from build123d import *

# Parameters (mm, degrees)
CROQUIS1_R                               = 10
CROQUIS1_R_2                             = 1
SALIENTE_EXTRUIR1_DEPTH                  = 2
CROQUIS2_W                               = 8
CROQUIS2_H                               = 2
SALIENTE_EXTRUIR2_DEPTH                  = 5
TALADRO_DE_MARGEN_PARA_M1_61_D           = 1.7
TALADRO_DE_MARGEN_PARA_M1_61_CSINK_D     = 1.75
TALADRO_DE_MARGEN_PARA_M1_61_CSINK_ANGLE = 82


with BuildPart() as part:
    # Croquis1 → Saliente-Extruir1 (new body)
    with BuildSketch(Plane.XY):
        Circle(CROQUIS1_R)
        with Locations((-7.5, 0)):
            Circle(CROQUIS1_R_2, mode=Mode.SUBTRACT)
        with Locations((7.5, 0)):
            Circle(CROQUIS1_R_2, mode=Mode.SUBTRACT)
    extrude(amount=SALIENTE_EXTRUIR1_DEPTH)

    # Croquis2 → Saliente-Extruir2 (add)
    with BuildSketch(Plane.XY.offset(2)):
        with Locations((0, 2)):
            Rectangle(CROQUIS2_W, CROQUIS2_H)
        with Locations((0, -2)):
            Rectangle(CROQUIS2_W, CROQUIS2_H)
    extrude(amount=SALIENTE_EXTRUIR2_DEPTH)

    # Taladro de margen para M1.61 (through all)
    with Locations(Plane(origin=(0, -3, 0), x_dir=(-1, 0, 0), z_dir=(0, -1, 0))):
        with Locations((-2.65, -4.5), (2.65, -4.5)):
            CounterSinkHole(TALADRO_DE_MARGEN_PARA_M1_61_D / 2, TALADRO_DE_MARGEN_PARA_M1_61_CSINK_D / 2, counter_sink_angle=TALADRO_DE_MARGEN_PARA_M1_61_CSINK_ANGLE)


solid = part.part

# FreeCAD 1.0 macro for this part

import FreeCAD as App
import Part
import Sketcher
from FreeCAD import Vector
Q = App.Units.Quantity


def add_polygon(sketch, points):
    """Adds a closed chain of lines whose ends are joined by coincident constraints."""
    first, n = sketch.GeometryCount, len(points)
    for a, b in zip(points, points[1:] + points[:1]):
        sketch.addGeometry(Part.LineSegment(App.Vector(*a, 0), App.Vector(*b, 0)), False)
    for i in range(n):
        sketch.addConstraint(Sketcher.Constraint("Coincident", first + i, 2, first + (i + 1) % n, 1))

doc = App.newDocument("Part")
body = doc.addObject("PartDesign::Body", "Body")

# Sketch on XY plane
sketch1 = doc.addObject("Sketcher::SketchObject", "Sketch")
body.addObject(sketch1)
sketch1.AttachmentSupport = (doc.XY_Plane, [""])
sketch1.MapMode = "FlatFace"
sketch1.addGeometry([
    Part.Circle(Vector(0, 0, 0), Vector(0, 0, 1), 10),
    Part.Circle(Vector(-7.5, 0, 0), Vector(0, 0, 1), 1),
    Part.Circle(Vector(7.5, 0, 0), Vector(0, 0, 1), 1),
], False)
sketch1.addConstraint([
    Sketcher.Constraint("Coincident", 0, 3, -1, 1),
    Sketcher.Constraint("Equal", 1, 2),
    Sketcher.Constraint("Symmetric", 1, 3, 2, 3, -1, 1),
    Sketcher.Constraint("PointOnObject", 1, 3, -1),
    Sketcher.Constraint("Diameter", 0, Q("20 mm")),
    Sketcher.Constraint("Diameter", 1, Q("2 mm")),
    Sketcher.Constraint("DistanceX", 1, 3, 2, 3, Q("15 mm")),
])
pad1 = doc.addObject("PartDesign::Pad", "Pad")
body.addObject(pad1)
pad1.Profile = sketch1
pad1.Length = 2

# Sketch on XY plane
sketch2 = doc.addObject("Sketcher::SketchObject", "Sketch001")
body.addObject(sketch2)
sketch2.AttachmentSupport = (doc.XY_Plane, [""])
sketch2.MapMode = "FlatFace"
sketch2.AttachmentOffset = App.Placement(Vector(0, 0, 2), App.Rotation())
add_polygon(sketch2, [(-4, 3), (-4, 1), (4, 1), (4, 3)])  # lines 0-3
add_polygon(sketch2, [(-4, -1), (-4, -3), (4, -3), (4, -1)])  # lines 4-7
sketch2.addConstraint([
    Sketcher.Constraint("Vertical", 0),
    Sketcher.Constraint("Horizontal", 1),
    Sketcher.Constraint("Vertical", 2),
    Sketcher.Constraint("Horizontal", 3),
    Sketcher.Constraint("Vertical", 4),
    Sketcher.Constraint("Horizontal", 5),
    Sketcher.Constraint("Vertical", 6),
    Sketcher.Constraint("Horizontal", 7),
    Sketcher.Constraint("Symmetric", 2, 2, 4, 2, -1, 1),
    Sketcher.Constraint("Symmetric", 0, 2, 6, 2, -1, 1),
    Sketcher.Constraint("Vertical", 3, 2, 4, 2),
    Sketcher.Constraint("DistanceX", 1, 1, 1, 2, Q("8 mm")),
    Sketcher.Constraint("DistanceY", 0, 2, 0, 1, Q("2 mm")),
    Sketcher.Constraint("DistanceY", -1, 1, 0, 2, Q("1 mm")),
])
pad2 = doc.addObject("PartDesign::Pad", "Pad001")
body.addObject(pad2)
pad2.Profile = sketch2
pad2.Length = 5

# Sketch on XZ plane
sketch3 = doc.addObject("Sketcher::SketchObject", "Sketch002")
body.addObject(sketch3)
sketch3.AttachmentSupport = (doc.XZ_Plane, [""])
sketch3.MapMode = "FlatFace"
sketch3.AttachmentOffset = App.Placement(Vector(0, 0, 3), App.Rotation())
sketch3.addGeometry([
    Part.Circle(Vector(2.65, 4.5, 0), Vector(0, 0, 1), 0.85),
    Part.Circle(Vector(-2.65, 4.5, 0), Vector(0, 0, 1), 0.85),
], False)
sketch3.addConstraint([
    Sketcher.Constraint("Equal", 0, 1),
    Sketcher.Constraint("Symmetric", 0, 3, 1, 3, -2),
    Sketcher.Constraint("Diameter", 0, Q("1.7 mm")),
    Sketcher.Constraint("DistanceY", -1, 1, 0, 3, Q("4.5 mm")),
    Sketcher.Constraint("DistanceX", 1, 3, 0, 3, Q("5.3 mm")),
])
doc.recompute()
hole = doc.addObject("PartDesign::Hole", "Hole")
body.addObject(hole)
hole.Profile = sketch3
hole.ThreadType = "None"
hole.Diameter = 1.7
hole.DepthType = "ThroughAll"
hole.HoleCutType = "Countersink"
hole.HoleCutDiameter = 1.75
hole.HoleCutCountersinkAngle = 82

doc.recompute()
